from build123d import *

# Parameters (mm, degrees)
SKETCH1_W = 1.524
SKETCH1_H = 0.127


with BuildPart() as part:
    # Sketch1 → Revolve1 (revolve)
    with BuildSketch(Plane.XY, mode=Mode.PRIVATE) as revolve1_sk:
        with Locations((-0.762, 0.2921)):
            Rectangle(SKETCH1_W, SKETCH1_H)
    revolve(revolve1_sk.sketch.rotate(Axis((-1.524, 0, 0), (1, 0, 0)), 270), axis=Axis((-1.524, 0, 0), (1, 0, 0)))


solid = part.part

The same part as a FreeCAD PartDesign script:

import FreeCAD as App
import Part
import Sketcher

V = App.Vector
Q = App.Units.Quantity


def add_polygon(sketch, points):
    """Adds a closed chain of lines whose ends are joined by coincident constraints."""
    first, n = sketch.GeometryCount, len(points)
    for a, b in zip(points, points[1:] + points[:1]):
        sketch.addGeometry(Part.LineSegment(App.Vector(*a, 0), App.Vector(*b, 0)), False)
    for i in range(n):
        sketch.addConstraint(Sketcher.Constraint("Coincident", first + i, 2, first + (i + 1) % n, 1))

doc = App.newDocument("Part")
body = doc.addObject("PartDesign::Body", "Body")

# Sketch on XY plane
sketch1 = doc.addObject("Sketcher::SketchObject", "Sketch")
body.addObject(sketch1)
sketch1.AttachmentSupport = (doc.XY_Plane, [""])
sketch1.MapMode = "FlatFace"
add_polygon(sketch1, [(-1.52, 0.36), (-1.52, 0.23), (0, 0.23), (0, 0.36)])  # lines 0-3
sketch1.addConstraint([
    Sketcher.Constraint("Vertical", 0),
    Sketcher.Constraint("Horizontal", 1),
    Sketcher.Constraint("Vertical", 2),
    Sketcher.Constraint("Horizontal", 3),
    Sketcher.Constraint("PointOnObject", 1, 2, -2),
    Sketcher.Constraint("DistanceX", 1, 1, 1, 2, Q("0.06 in")),
    Sketcher.Constraint("DistanceY", 0, 2, 0, 1, Q("0.005 in")),
    Sketcher.Constraint("DistanceY", -1, 1, 0, 2, Q("0.009 in")),
])
revolution = doc.addObject("PartDesign::Revolution", "Revolution")
body.addObject(revolution)
revolution.Profile = sketch1
revolution.ReferenceAxis = (sketch1, ["H_Axis"])
revolution.Angle = 360

doc.recompute()
